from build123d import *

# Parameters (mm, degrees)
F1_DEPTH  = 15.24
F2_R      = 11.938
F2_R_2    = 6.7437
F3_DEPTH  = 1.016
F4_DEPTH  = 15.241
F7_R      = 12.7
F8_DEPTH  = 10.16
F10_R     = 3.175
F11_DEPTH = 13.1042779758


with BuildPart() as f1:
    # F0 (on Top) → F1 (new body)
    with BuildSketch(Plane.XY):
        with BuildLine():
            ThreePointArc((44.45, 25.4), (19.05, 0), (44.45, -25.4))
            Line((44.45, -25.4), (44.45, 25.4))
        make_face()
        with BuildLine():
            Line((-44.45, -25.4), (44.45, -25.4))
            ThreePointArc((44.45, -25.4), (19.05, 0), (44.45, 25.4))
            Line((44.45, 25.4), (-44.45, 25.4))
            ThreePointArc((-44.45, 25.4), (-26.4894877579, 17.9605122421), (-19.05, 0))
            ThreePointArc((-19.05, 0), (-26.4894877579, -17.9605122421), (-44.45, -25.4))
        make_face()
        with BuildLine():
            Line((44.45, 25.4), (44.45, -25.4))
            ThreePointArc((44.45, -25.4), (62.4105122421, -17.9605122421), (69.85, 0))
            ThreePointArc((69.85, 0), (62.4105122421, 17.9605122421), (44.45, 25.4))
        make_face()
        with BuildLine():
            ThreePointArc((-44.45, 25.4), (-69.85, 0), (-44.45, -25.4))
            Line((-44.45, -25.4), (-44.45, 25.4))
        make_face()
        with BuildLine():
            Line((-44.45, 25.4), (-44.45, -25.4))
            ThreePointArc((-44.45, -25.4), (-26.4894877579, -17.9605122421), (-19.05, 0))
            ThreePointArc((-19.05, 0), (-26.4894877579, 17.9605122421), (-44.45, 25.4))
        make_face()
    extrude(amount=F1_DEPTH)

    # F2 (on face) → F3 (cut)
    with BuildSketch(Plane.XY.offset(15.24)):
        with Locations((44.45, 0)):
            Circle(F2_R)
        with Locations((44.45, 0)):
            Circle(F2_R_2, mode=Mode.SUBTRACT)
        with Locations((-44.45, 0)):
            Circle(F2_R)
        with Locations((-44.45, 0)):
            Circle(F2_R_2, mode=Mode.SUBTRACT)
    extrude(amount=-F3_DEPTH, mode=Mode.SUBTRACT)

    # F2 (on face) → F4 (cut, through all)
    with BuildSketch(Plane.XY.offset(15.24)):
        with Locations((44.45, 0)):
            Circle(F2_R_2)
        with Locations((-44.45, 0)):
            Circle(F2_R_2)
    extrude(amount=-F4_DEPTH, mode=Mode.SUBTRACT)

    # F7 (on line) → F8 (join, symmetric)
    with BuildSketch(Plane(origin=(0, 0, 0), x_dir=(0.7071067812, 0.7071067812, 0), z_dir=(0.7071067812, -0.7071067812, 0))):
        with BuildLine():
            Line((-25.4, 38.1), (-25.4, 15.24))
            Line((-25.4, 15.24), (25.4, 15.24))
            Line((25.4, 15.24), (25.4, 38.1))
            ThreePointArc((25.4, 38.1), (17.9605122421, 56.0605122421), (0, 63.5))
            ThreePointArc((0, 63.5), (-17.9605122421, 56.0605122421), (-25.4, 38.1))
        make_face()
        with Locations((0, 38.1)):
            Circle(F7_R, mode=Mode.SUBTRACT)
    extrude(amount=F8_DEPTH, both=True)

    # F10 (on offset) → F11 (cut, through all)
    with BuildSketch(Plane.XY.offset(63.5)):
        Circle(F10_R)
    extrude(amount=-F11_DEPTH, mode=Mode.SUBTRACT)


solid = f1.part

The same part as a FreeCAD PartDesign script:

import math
import FreeCAD as App
import Part
import Sketcher
from FreeCAD import Vector
Q = App.Units.Quantity

doc = App.newDocument("Part")
body = doc.addObject("PartDesign::Body", "Body")

# Sketch on XY plane
sketch1 = body.newObject("Sketcher::SketchObject", "Sketch")
sketch1.AttachmentSupport = (doc.getObject("XY_Plane"), [""])
sketch1.MapMode = "FlatFace"
sketch1.addGeometry([
    Part.LineSegment(Vector(44, 25, 0), Vector(-44, 25, 0)),  # 0
    Part.ArcOfCircle(Part.Circle(Vector(-44, 0, 0), Vector(0, 0, 1), 25), math.radians(90), math.radians(270)),  # 1
    Part.LineSegment(Vector(-44, -25, 0), Vector(44, -25, 0)),  # 2
    Part.ArcOfCircle(Part.Circle(Vector(44, 0, 0), Vector(0, 0, 1), 25), math.radians(-90), math.radians(0)),  # 3
    Part.ArcOfCircle(Part.Circle(Vector(44, 0, 0), Vector(0, 0, 1), 25), math.radians(0), math.radians(90)),  # 4
], False)
sketch1.addConstraint([
    Sketcher.Constraint("Tangent", 0, 2, 1, 1),
    Sketcher.Constraint("Tangent", 1, 2, 2, 1),
    Sketcher.Constraint("Tangent", 2, 2, 3, 1),
    Sketcher.Constraint("Tangent", 3, 2, 4, 1),
    Sketcher.Constraint("Tangent", 4, 2, 0, 1),
    Sketcher.Constraint("Horizontal", 0),
    Sketcher.Constraint("Horizontal", 2),
    Sketcher.Constraint("Equal", 1, 3),
    Sketcher.Constraint("Symmetric", 1, 3, 3, 3, -1, 1),
    Sketcher.Constraint("PointOnObject", 3, 2, -1),
    Sketcher.Constraint("Radius", 1, Q("1 in")),
    Sketcher.Constraint("DistanceX", 0, 2, 0, 1, Q("3.5 in")),
])
pad1 = body.newObject("PartDesign::Pad", "Pad")
pad1.Profile = sketch1
pad1.Length = Q("0.6 in")

# Sketch on XY plane
sketch2 = body.newObject("Sketcher::SketchObject", "Sketch001")
sketch2.AttachmentSupport = (doc.getObject("XY_Plane"), [""])
sketch2.MapMode = "FlatFace"
sketch2.AttachmentOffset = App.Placement(Vector(0, 0, 0.6 * 25.4), App.Rotation())
sketch2.addGeometry([
    Part.Circle(Vector(44, 0, 0), Vector(0, 0, 1), 12),
    Part.Circle(Vector(44, 0, 0), Vector(0, 0, 1), 7),
    Part.Circle(Vector(-44, 0, 0), Vector(0, 0, 1), 12),
    Part.Circle(Vector(-44, 0, 0), Vector(0, 0, 1), 7),
], False)
sketch2.addConstraint([
    Sketcher.Constraint("Coincident", 1, 3, 0, 3),
    Sketcher.Constraint("Coincident", 3, 3, 2, 3),
    Sketcher.Constraint("Equal", 0, 2),
    Sketcher.Constraint("Equal", 1, 3),
    Sketcher.Constraint("Symmetric", 0, 3, 2, 3, -1, 1),
    Sketcher.Constraint("PointOnObject", 0, 3, -1),
    Sketcher.Constraint("Diameter", 0, Q("0.94 in")),
    Sketcher.Constraint("Diameter", 1, Q("0.531 in")),
    Sketcher.Constraint("DistanceX", 2, 3, 0, 3, Q("3.5 in")),
])
pocket1 = body.newObject("PartDesign::Pocket", "Pocket")
pocket1.Profile = sketch2
pocket1.Length = Q("0.04 in")

# Sketch on XY plane
sketch3 = body.newObject("Sketcher::SketchObject", "Sketch002")
sketch3.AttachmentSupport = (doc.getObject("XY_Plane"), [""])
sketch3.MapMode = "FlatFace"
sketch3.AttachmentOffset = App.Placement(Vector(0, 0, 0.6 * 25.4), App.Rotation())
sketch3.addGeometry([
    Part.Circle(Vector(44, 0, 0), Vector(0, 0, 1), 7),
    Part.Circle(Vector(-44, 0, 0), Vector(0, 0, 1), 7),
], False)
sketch3.addConstraint([
    Sketcher.Constraint("Equal", 0, 1),
    Sketcher.Constraint("Symmetric", 0, 3, 1, 3, -1, 1),
    Sketcher.Constraint("PointOnObject", 0, 3, -1),
    Sketcher.Constraint("Diameter", 0, Q("0.531 in")),
    Sketcher.Constraint("DistanceX", 1, 3, 0, 3, Q("3.5 in")),
])
pocket2 = body.newObject("PartDesign::Pocket", "Pocket001")
pocket2.Profile = sketch3
pocket2.Type = "ThroughAll"

# Sketch on an angled plane
sketch4 = body.newObject("Sketcher::SketchObject", "Sketch003")
sketch4.Placement = App.Placement(Vector(0, 0, 0), App.Rotation(Vector(0.707106781, 0.707106781, 0), Vector(0, 0, 0.999999999), Vector(0.707106781, -0.707106781, 0), "ZXY"))
sketch4.addGeometry([
    Part.LineSegment(Vector(-25, 38, 0), Vector(-25, 15, 0)),  # 0
    Part.LineSegment(Vector(-25, 15, 0), Vector(25, 15, 0)),  # 1
    Part.LineSegment(Vector(25, 15, 0), Vector(25, 38, 0)),  # 2
    Part.ArcOfCircle(Part.Circle(Vector(0, 38, 0), Vector(0, 0, 1), 25), math.radians(0), math.radians(90)),  # 3
    Part.ArcOfCircle(Part.Circle(Vector(0, 38, 0), Vector(0, 0, 1), 25), math.radians(90), math.radians(180)),  # 4
    Part.Circle(Vector(0, 38, 0), Vector(0, 0, 1), 13),  # 5
], False)
sketch4.addConstraint([
    Sketcher.Constraint("Coincident", 0, 2, 1, 1),
    Sketcher.Constraint("Coincident", 1, 2, 2, 1),
    Sketcher.Constraint("Tangent", 2, 2, 3, 1),
    Sketcher.Constraint("Tangent", 3, 2, 4, 1),
    Sketcher.Constraint("Tangent", 4, 2, 0, 1),
    Sketcher.Constraint("Vertical", 0),
    Sketcher.Constraint("Horizontal", 1),
    Sketcher.Constraint("Vertical", 2),
    Sketcher.Constraint("Coincident", 5, 3, 3, 3),
    Sketcher.Constraint("Equal", 3, 4),
    Sketcher.Constraint("PointOnObject", 3, 3, -2),
    Sketcher.Constraint("PointOnObject", 3, 2, -2),
    Sketcher.Constraint("Diameter", 5, Q("1 in")),
    Sketcher.Constraint("Radius", 3, Q("1 in")),
    Sketcher.Constraint("DistanceY", 0, 2, 0, 1, Q("0.9 in")),
    Sketcher.Constraint("DistanceY", -1, 1, 3, 3, Q("1.5 in")),
])
pad2 = body.newObject("PartDesign::Pad", "Pad001")
pad2.Profile = sketch4
pad2.Length = Q("0.8 in")
pad2.Midplane = True

# Sketch on XY plane
sketch5 = body.newObject("Sketcher::SketchObject", "Sketch004")
sketch5.AttachmentSupport = (doc.getObject("XY_Plane"), [""])
sketch5.MapMode = "FlatFace"
sketch5.AttachmentOffset = App.Placement(Vector(0, 0, 2.5 * 25.4), App.Rotation())
sketch5.addGeometry(Part.Circle(Vector(0, 0, 0), Vector(0, 0, 1), 3.2), False)
sketch5.addConstraint([
    Sketcher.Constraint("Coincident", 0, 3, -1, 1),
    Sketcher.Constraint("Diameter", 0, Q("0.25 in")),
])
pocket3 = body.newObject("PartDesign::Pocket", "Pocket002")
pocket3.Profile = sketch5
pocket3.Length = 13.104278

doc.recompute()
